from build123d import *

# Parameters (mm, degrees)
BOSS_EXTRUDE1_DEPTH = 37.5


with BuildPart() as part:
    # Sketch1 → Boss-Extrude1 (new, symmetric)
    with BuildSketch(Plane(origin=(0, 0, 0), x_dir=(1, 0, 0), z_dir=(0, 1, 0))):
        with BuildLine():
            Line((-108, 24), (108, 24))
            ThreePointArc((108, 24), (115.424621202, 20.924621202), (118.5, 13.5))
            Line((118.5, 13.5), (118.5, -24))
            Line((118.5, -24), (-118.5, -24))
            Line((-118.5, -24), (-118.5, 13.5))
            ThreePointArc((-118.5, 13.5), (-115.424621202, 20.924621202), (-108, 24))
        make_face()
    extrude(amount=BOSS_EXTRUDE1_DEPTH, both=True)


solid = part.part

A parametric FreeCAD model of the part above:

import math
import FreeCAD as App
import Part
import Sketcher

doc = App.newDocument("Part")
body = doc.addObject("PartDesign::Body", "Body")

# Sketch on XZ plane
sketch1 = body.newObject("Sketcher::SketchObject", "Sketch")
sketch1.AttachmentSupport = (doc.getObject("XZ_Plane"), [""])
sketch1.MapMode = "FlatFace"
sketch1.addGeometry([
    Part.LineSegment(App.Vector(108, -24, 0), App.Vector(-108, -24, 0)),  # 0
    Part.ArcOfCircle(Part.Circle(App.Vector(-108, -13, 0), App.Vector(0, 0, 1), 11), math.radians(-180), math.radians(-90)),  # 1
    Part.LineSegment(App.Vector(-118, -14, 0), App.Vector(-118, 24, 0)),  # 2
    Part.LineSegment(App.Vector(-118, 24, 0), App.Vector(118, 24, 0)),  # 3
    Part.LineSegment(App.Vector(118, 24, 0), App.Vector(118, -14, 0)),  # 4
    Part.ArcOfCircle(Part.Circle(App.Vector(108, -13, 0), App.Vector(0, 0, 1), 11), math.radians(-90), math.radians(0)),  # 5
], False)
sketch1.addConstraint([
    Sketcher.Constraint("Tangent", 0, 2, 1, 2),
    Sketcher.Constraint("Tangent", 1, 1, 2, 1),
    Sketcher.Constraint("Coincident", 2, 2, 3, 1),
    Sketcher.Constraint("Coincident", 3, 2, 4, 1),
    Sketcher.Constraint("Tangent", 4, 2, 5, 2),
    Sketcher.Constraint("Tangent", 5, 1, 0, 1),
    Sketcher.Constraint("Horizontal", 0),
    Sketcher.Constraint("Vertical", 2),
    Sketcher.Constraint("Horizontal", 3),
    Sketcher.Constraint("Vertical", 4),
    Sketcher.Constraint("Equal", 1, 5),
    Sketcher.Constraint("Radius", 1, 10.5),
    Sketcher.Constraint("DistanceX", 0, 2, 0, 1, 216.0),
    Sketcher.Constraint("DistanceY", 2, 1, 2, 2, 37.5),
    Sketcher.Constraint("DistanceX", 1, 3, -1, 1, 108.0),
    Sketcher.Constraint("DistanceY", 0, 2, -1, 1, 24.0),
])
pad1 = body.newObject("PartDesign::Pad", "Pad")
pad1.Profile = sketch1
pad1.Length = 75
pad1.Midplane = True

doc.recompute()
